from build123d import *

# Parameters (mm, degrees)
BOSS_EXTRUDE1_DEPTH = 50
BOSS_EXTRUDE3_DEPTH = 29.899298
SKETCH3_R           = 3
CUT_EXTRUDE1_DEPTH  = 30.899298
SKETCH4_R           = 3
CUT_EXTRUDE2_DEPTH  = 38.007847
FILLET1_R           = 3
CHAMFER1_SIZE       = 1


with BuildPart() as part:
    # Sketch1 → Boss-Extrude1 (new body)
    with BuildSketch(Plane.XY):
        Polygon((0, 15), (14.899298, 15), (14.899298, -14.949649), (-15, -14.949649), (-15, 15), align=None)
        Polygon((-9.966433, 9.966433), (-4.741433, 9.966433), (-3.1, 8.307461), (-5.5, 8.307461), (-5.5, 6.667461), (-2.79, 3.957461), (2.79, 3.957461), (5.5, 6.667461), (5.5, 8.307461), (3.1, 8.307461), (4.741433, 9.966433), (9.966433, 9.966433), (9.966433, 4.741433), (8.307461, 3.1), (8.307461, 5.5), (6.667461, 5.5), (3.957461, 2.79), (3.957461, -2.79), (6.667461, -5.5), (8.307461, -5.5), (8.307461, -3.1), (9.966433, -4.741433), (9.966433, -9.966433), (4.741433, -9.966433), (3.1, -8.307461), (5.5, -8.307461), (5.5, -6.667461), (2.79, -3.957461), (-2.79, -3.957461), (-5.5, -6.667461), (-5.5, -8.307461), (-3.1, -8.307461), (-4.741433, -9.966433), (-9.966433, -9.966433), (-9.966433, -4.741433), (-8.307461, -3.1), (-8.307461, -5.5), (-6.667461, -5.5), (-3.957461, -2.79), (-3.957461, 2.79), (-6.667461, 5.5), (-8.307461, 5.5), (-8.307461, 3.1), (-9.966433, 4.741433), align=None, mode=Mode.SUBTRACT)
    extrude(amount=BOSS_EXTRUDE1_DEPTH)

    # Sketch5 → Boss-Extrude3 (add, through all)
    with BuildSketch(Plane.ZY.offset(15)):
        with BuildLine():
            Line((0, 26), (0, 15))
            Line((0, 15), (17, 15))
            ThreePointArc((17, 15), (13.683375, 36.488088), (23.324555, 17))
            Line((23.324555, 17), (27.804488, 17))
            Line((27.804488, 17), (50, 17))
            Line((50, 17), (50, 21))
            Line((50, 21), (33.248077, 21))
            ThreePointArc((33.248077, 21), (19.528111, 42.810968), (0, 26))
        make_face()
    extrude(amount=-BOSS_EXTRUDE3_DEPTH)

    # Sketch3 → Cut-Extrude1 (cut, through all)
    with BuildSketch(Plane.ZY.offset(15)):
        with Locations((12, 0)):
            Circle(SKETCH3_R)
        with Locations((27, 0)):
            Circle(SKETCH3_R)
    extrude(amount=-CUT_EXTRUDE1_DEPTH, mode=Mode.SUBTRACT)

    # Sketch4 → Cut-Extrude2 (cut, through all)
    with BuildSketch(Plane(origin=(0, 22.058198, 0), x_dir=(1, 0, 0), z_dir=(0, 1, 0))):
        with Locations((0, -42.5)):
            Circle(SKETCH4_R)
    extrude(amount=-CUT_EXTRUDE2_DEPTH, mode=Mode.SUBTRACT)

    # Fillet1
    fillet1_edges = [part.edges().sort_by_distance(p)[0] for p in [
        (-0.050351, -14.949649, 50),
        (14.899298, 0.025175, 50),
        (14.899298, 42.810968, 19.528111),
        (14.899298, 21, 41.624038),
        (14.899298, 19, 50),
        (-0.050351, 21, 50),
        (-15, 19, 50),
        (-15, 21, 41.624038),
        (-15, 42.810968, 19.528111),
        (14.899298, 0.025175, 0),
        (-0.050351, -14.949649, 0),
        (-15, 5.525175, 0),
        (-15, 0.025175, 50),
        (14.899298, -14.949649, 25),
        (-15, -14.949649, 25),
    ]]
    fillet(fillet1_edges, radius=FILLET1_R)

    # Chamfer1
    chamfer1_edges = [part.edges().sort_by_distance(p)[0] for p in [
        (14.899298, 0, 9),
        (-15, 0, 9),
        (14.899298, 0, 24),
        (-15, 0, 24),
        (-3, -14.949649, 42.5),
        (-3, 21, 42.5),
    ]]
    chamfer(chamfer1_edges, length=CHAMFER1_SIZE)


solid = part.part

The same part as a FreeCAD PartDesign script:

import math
import FreeCAD as App
import Part
import Sketcher


def edges_at(feature, points):
    """Names of the edges that pass closest to the given points."""
    edges = feature.Shape.Edges
    near = lambda p: min(range(len(edges)), key=lambda i: edges[i].distToShape(Part.Vertex(*p))[0])
    return sorted({f"Edge{near(p) + 1}" for p in points})

doc = App.newDocument("Part")
body = doc.addObject("PartDesign::Body", "Body")

# Sketch on XY plane
sketch1 = body.newObject("Sketcher::SketchObject", "Sketch")
sketch1.AttachmentSupport = (doc.getObject("XY_Plane"), [""])
sketch1.MapMode = "FlatFace"
sketch1.addGeometry(Part.LineSegment(App.Vector(14.9, 15, 0), App.Vector(-15, 15, 0)), False)
sketch1.addGeometry(Part.LineSegment(App.Vector(-15, 15, 0), App.Vector(-15, -14.9, 0)), False)
sketch1.addGeometry(Part.LineSegment(App.Vector(-15, -14.9, 0), App.Vector(14.9, -14.9, 0)), False)
sketch1.addGeometry(Part.LineSegment(App.Vector(14.9, -14.9, 0), App.Vector(14.9, 15, 0)), False)
sketch1.addGeometry(Part.LineSegment(App.Vector(-10, 10, 0), App.Vector(-4.7, 10, 0)), False)
sketch1.addGeometry(Part.LineSegment(App.Vector(-4.7, 10, 0), App.Vector(-3.1, 8.3, 0)), False)
sketch1.addGeometry(Part.LineSegment(App.Vector(-3.1, 8.3, 0), App.Vector(-5.5, 8.3, 0)), False)
sketch1.addGeometry(Part.LineSegment(App.Vector(-5.5, 8.3, 0), App.Vector(-5.5, 6.7, 0)), False)
sketch1.addGeometry(Part.LineSegment(App.Vector(-5.5, 6.7, 0), App.Vector(-2.8, 4, 0)), False)
sketch1.addGeometry(Part.LineSegment(App.Vector(-2.8, 4, 0), App.Vector(2.8, 4, 0)), False)
sketch1.addGeometry(Part.LineSegment(App.Vector(2.8, 4, 0), App.Vector(5.5, 6.7, 0)), False)
sketch1.addGeometry(Part.LineSegment(App.Vector(5.5, 6.7, 0), App.Vector(5.5, 8.3, 0)), False)
sketch1.addGeometry(Part.LineSegment(App.Vector(5.5, 8.3, 0), App.Vector(3.1, 8.3, 0)), False)
sketch1.addGeometry(Part.LineSegment(App.Vector(3.1, 8.3, 0), App.Vector(4.7, 10, 0)), False)
sketch1.addGeometry(Part.LineSegment(App.Vector(4.7, 10, 0), App.Vector(10, 10, 0)), False)
sketch1.addGeometry(Part.LineSegment(App.Vector(10, 10, 0), App.Vector(10, 4.7, 0)), False)
sketch1.addGeometry(Part.LineSegment(App.Vector(10, 4.7, 0), App.Vector(8.3, 3.1, 0)), False)
sketch1.addGeometry(Part.LineSegment(App.Vector(8.3, 3.1, 0), App.Vector(8.3, 5.5, 0)), False)
sketch1.addGeometry(Part.LineSegment(App.Vector(8.3, 5.5, 0), App.Vector(6.7, 5.5, 0)), False)
sketch1.addGeometry(Part.LineSegment(App.Vector(6.7, 5.5, 0), App.Vector(4, 2.8, 0)), False)
sketch1.addGeometry(Part.LineSegment(App.Vector(4, 2.8, 0), App.Vector(4, -2.8, 0)), False)
sketch1.addGeometry(Part.LineSegment(App.Vector(4, -2.8, 0), App.Vector(6.7, -5.5, 0)), False)
sketch1.addGeometry(Part.LineSegment(App.Vector(6.7, -5.5, 0), App.Vector(8.3, -5.5, 0)), False)
sketch1.addGeometry(Part.LineSegment(App.Vector(8.3, -5.5, 0), App.Vector(8.3, -3.1, 0)), False)
sketch1.addGeometry(Part.LineSegment(App.Vector(8.3, -3.1, 0), App.Vector(10, -4.7, 0)), False)
sketch1.addGeometry(Part.LineSegment(App.Vector(10, -4.7, 0), App.Vector(10, -10, 0)), False)
sketch1.addGeometry(Part.LineSegment(App.Vector(10, -10, 0), App.Vector(4.7, -10, 0)), False)
sketch1.addGeometry(Part.LineSegment(App.Vector(4.7, -10, 0), App.Vector(3.1, -8.3, 0)), False)
sketch1.addGeometry(Part.LineSegment(App.Vector(3.1, -8.3, 0), App.Vector(5.5, -8.3, 0)), False)
sketch1.addGeometry(Part.LineSegment(App.Vector(5.5, -8.3, 0), App.Vector(5.5, -6.7, 0)), False)
sketch1.addGeometry(Part.LineSegment(App.Vector(5.5, -6.7, 0), App.Vector(2.8, -4, 0)), False)
sketch1.addGeometry(Part.LineSegment(App.Vector(2.8, -4, 0), App.Vector(-2.8, -4, 0)), False)
sketch1.addGeometry(Part.LineSegment(App.Vector(-2.8, -4, 0), App.Vector(-5.5, -6.7, 0)), False)
sketch1.addGeometry(Part.LineSegment(App.Vector(-5.5, -6.7, 0), App.Vector(-5.5, -8.3, 0)), False)
sketch1.addGeometry(Part.LineSegment(App.Vector(-5.5, -8.3, 0), App.Vector(-3.1, -8.3, 0)), False)
sketch1.addGeometry(Part.LineSegment(App.Vector(-3.1, -8.3, 0), App.Vector(-4.7, -10, 0)), False)
sketch1.addGeometry(Part.LineSegment(App.Vector(-4.7, -10, 0), App.Vector(-10, -10, 0)), False)
sketch1.addGeometry(Part.LineSegment(App.Vector(-10, -10, 0), App.Vector(-10, -4.7, 0)), False)
sketch1.addGeometry(Part.LineSegment(App.Vector(-10, -4.7, 0), App.Vector(-8.3, -3.1, 0)), False)
sketch1.addGeometry(Part.LineSegment(App.Vector(-8.3, -3.1, 0), App.Vector(-8.3, -5.5, 0)), False)
sketch1.addGeometry(Part.LineSegment(App.Vector(-8.3, -5.5, 0), App.Vector(-6.7, -5.5, 0)), False)
sketch1.addGeometry(Part.LineSegment(App.Vector(-6.7, -5.5, 0), App.Vector(-4, -2.8, 0)), False)
sketch1.addGeometry(Part.LineSegment(App.Vector(-4, -2.8, 0), App.Vector(-4, 2.8, 0)), False)
sketch1.addGeometry(Part.LineSegment(App.Vector(-4, 2.8, 0), App.Vector(-6.7, 5.5, 0)), False)
sketch1.addGeometry(Part.LineSegment(App.Vector(-6.7, 5.5, 0), App.Vector(-8.3, 5.5, 0)), False)
sketch1.addGeometry(Part.LineSegment(App.Vector(-8.3, 5.5, 0), App.Vector(-8.3, 3.1, 0)), False)
sketch1.addGeometry(Part.LineSegment(App.Vector(-8.3, 3.1, 0), App.Vector(-10, 4.7, 0)), False)
sketch1.addGeometry(Part.LineSegment(App.Vector(-10, 4.7, 0), App.Vector(-10, 10, 0)), False)
sketch1.addConstraint(Sketcher.Constraint("Coincident", 0, 2, 1, 1))
sketch1.addConstraint(Sketcher.Constraint("Coincident", 1, 2, 2, 1))
sketch1.addConstraint(Sketcher.Constraint("Coincident", 2, 2, 3, 1))
sketch1.addConstraint(Sketcher.Constraint("Coincident", 3, 2, 0, 1))
sketch1.addConstraint(Sketcher.Constraint("Coincident", 4, 2, 5, 1))
sketch1.addConstraint(Sketcher.Constraint("Coincident", 5, 2, 6, 1))
sketch1.addConstraint(Sketcher.Constraint("Coincident", 6, 2, 7, 1))
sketch1.addConstraint(Sketcher.Constraint("Coincident", 7, 2, 8, 1))
sketch1.addConstraint(Sketcher.Constraint("Coincident", 8, 2, 9, 1))
sketch1.addConstraint(Sketcher.Constraint("Coincident", 9, 2, 10, 1))
sketch1.addConstraint(Sketcher.Constraint("Coincident", 10, 2, 11, 1))
sketch1.addConstraint(Sketcher.Constraint("Coincident", 11, 2, 12, 1))
sketch1.addConstraint(Sketcher.Constraint("Coincident", 12, 2, 13, 1))
sketch1.addConstraint(Sketcher.Constraint("Coincident", 13, 2, 14, 1))
sketch1.addConstraint(Sketcher.Constraint("Coincident", 14, 2, 15, 1))
sketch1.addConstraint(Sketcher.Constraint("Coincident", 15, 2, 16, 1))
sketch1.addConstraint(Sketcher.Constraint("Coincident", 16, 2, 17, 1))
sketch1.addConstraint(Sketcher.Constraint("Coincident", 17, 2, 18, 1))
sketch1.addConstraint(Sketcher.Constraint("Coincident", 18, 2, 19, 1))
sketch1.addConstraint(Sketcher.Constraint("Coincident", 19, 2, 20, 1))
sketch1.addConstraint(Sketcher.Constraint("Coincident", 20, 2, 21, 1))
sketch1.addConstraint(Sketcher.Constraint("Coincident", 21, 2, 22, 1))
sketch1.addConstraint(Sketcher.Constraint("Coincident", 22, 2, 23, 1))
sketch1.addConstraint(Sketcher.Constraint("Coincident", 23, 2, 24, 1))
sketch1.addConstraint(Sketcher.Constraint("Coincident", 24, 2, 25, 1))
sketch1.addConstraint(Sketcher.Constraint("Coincident", 25, 2, 26, 1))
sketch1.addConstraint(Sketcher.Constraint("Coincident", 26, 2, 27, 1))
sketch1.addConstraint(Sketcher.Constraint("Coincident", 27, 2, 28, 1))
sketch1.addConstraint(Sketcher.Constraint("Coincident", 28, 2, 29, 1))
sketch1.addConstraint(Sketcher.Constraint("Coincident", 29, 2, 30, 1))
sketch1.addConstraint(Sketcher.Constraint("Coincident", 30, 2, 31, 1))
sketch1.addConstraint(Sketcher.Constraint("Coincident", 31, 2, 32, 1))
sketch1.addConstraint(Sketcher.Constraint("Coincident", 32, 2, 33, 1))
sketch1.addConstraint(Sketcher.Constraint("Coincident", 33, 2, 34, 1))
sketch1.addConstraint(Sketcher.Constraint("Coincident", 34, 2, 35, 1))
sketch1.addConstraint(Sketcher.Constraint("Coincident", 35, 2, 36, 1))
sketch1.addConstraint(Sketcher.Constraint("Coincident", 36, 2, 37, 1))
sketch1.addConstraint(Sketcher.Constraint("Coincident", 37, 2, 38, 1))
sketch1.addConstraint(Sketcher.Constraint("Coincident", 38, 2, 39, 1))
sketch1.addConstraint(Sketcher.Constraint("Coincident", 39, 2, 40, 1))
sketch1.addConstraint(Sketcher.Constraint("Coincident", 40, 2, 41, 1))
sketch1.addConstraint(Sketcher.Constraint("Coincident", 41, 2, 42, 1))
sketch1.addConstraint(Sketcher.Constraint("Coincident", 42, 2, 43, 1))
sketch1.addConstraint(Sketcher.Constraint("Coincident", 43, 2, 44, 1))
sketch1.addConstraint(Sketcher.Constraint("Coincident", 44, 2, 45, 1))
sketch1.addConstraint(Sketcher.Constraint("Coincident", 45, 2, 46, 1))
sketch1.addConstraint(Sketcher.Constraint("Coincident", 46, 2, 47, 1))
sketch1.addConstraint(Sketcher.Constraint("Coincident", 47, 2, 4, 1))
sketch1.addConstraint(Sketcher.Constraint("Horizontal", 0))
sketch1.addConstraint(Sketcher.Constraint("Vertical", 1))
sketch1.addConstraint(Sketcher.Constraint("Horizontal", 2))
sketch1.addConstraint(Sketcher.Constraint("Vertical", 3))
sketch1.addConstraint(Sketcher.Constraint("Horizontal", 4))
sketch1.addConstraint(Sketcher.Constraint("Horizontal", 6))
sketch1.addConstraint(Sketcher.Constraint("Vertical", 7))
sketch1.addConstraint(Sketcher.Constraint("Horizontal", 9))
sketch1.addConstraint(Sketcher.Constraint("Vertical", 11))
sketch1.addConstraint(Sketcher.Constraint("Horizontal", 12))
sketch1.addConstraint(Sketcher.Constraint("Horizontal", 14))
sketch1.addConstraint(Sketcher.Constraint("Vertical", 15))
sketch1.addConstraint(Sketcher.Constraint("Vertical", 17))
sketch1.addConstraint(Sketcher.Constraint("Horizontal", 18))
sketch1.addConstraint(Sketcher.Constraint("Vertical", 20))
sketch1.addConstraint(Sketcher.Constraint("Horizontal", 22))
sketch1.addConstraint(Sketcher.Constraint("Vertical", 23))
sketch1.addConstraint(Sketcher.Constraint("Vertical", 25))
sketch1.addConstraint(Sketcher.Constraint("Horizontal", 26))
sketch1.addConstraint(Sketcher.Constraint("Horizontal", 28))
sketch1.addConstraint(Sketcher.Constraint("Vertical", 29))
sketch1.addConstraint(Sketcher.Constraint("Horizontal", 31))
sketch1.addConstraint(Sketcher.Constraint("Vertical", 33))
sketch1.addConstraint(Sketcher.Constraint("Horizontal", 34))
sketch1.addConstraint(Sketcher.Constraint("Horizontal", 36))
sketch1.addConstraint(Sketcher.Constraint("Vertical", 37))
sketch1.addConstraint(Sketcher.Constraint("Vertical", 39))
sketch1.addConstraint(Sketcher.Constraint("Horizontal", 40))
sketch1.addConstraint(Sketcher.Constraint("Vertical", 42))
sketch1.addConstraint(Sketcher.Constraint("Horizontal", 44))
sketch1.addConstraint(Sketcher.Constraint("Vertical", 45))
sketch1.addConstraint(Sketcher.Constraint("Vertical", 47))
sketch1.addConstraint(Sketcher.Constraint("Symmetric", 4, 2, 26, 2, -1, 1))
sketch1.addConstraint(Sketcher.Constraint("Symmetric", 5, 2, 27, 2, -1, 1))
sketch1.addConstraint(Sketcher.Constraint("Symmetric", 7, 2, 29, 2, -1, 1))
sketch1.addConstraint(Sketcher.Constraint("Symmetric", 8, 2, 30, 2, -1, 1))
sketch1.addConstraint(Sketcher.Constraint("Symmetric", 10, 2, 32, 2, -1, 1))
sketch1.addConstraint(Sketcher.Constraint("Symmetric", 12, 2, 34, 2, -1, 1))
sketch1.addConstraint(Sketcher.Constraint("Symmetric", 13, 2, 35, 2, -1, 1))
sketch1.addConstraint(Sketcher.Constraint("Symmetric", 15, 2, 37, 2, -1, 1))
sketch1.addConstraint(Sketcher.Constraint("Symmetric", 16, 2, 38, 2, -1, 1))
sketch1.addConstraint(Sketcher.Constraint("Symmetric", 18, 2, 40, 2, -1, 1))
sketch1.addConstraint(Sketcher.Constraint("Symmetric", 19, 2, 41, 2, -1, 1))
sketch1.addConstraint(Sketcher.Constraint("Symmetric", 21, 2, 43, 2, -1, 1))
sketch1.addConstraint(Sketcher.Constraint("Symmetric", 23, 2, 45, 2, -1, 1))
sketch1.addConstraint(Sketcher.Constraint("Symmetric", 24, 2, 46, 2, -1, 1))
sketch1.addConstraint(Sketcher.Constraint("Symmetric", 7, 2, 10, 2, -2))
sketch1.addConstraint(Sketcher.Constraint("Symmetric", 5, 2, 12, 2, -2))
sketch1.addConstraint(Sketcher.Constraint("Symmetric", 4, 2, 13, 2, -2))
sketch1.addConstraint(Sketcher.Constraint("Symmetric", 24, 2, 37, 2, -2))
sketch1.addConstraint(Sketcher.Constraint("Symmetric", 23, 2, 38, 2, -2))
sketch1.addConstraint(Sketcher.Constraint("Symmetric", 21, 2, 40, 2, -2))
sketch1.addConstraint(Sketcher.Constraint("Perpendicular", 8, 10))
sketch1.addConstraint(Sketcher.Constraint("Perpendicular", 5, 16))
sketch1.addConstraint(Sketcher.Constraint("Parallel", 10, 19))
sketch1.addConstraint(Sketcher.Constraint("Perpendicular", 19, 21))
sketch1.addConstraint(Sketcher.Constraint("Perpendicular", 30, 32))
sketch1.addConstraint(Sketcher.Constraint("Perpendicular", 41, 43))
sketch1.addConstraint(Sketcher.Constraint("Horizontal", 20, 2, 41, 2))
sketch1.addConstraint(Sketcher.Constraint("Equal", 44, 7))
sketch1.addConstraint(Sketcher.Constraint("Equal", 36, 15))
sketch1.addConstraint(Sketcher.Constraint("Equal", 34, 17))
sketch1.addConstraint(Sketcher.Constraint("Equal", 31, 20))
sketch1.addConstraint(Sketcher.Constraint("Equal", 13, 16))
sketch1.addConstraint(Sketcher.Constraint("Equal", 10, 19))
sketch1.addConstraint(Sketcher.Constraint("DistanceX", 6, 2, 6, 1, 2.4))
sketch1.addConstraint(Sketcher.Constraint("DistanceX", 0, 2, -1, 1, 15.0))
sketch1.addConstraint(Sketcher.Constraint("DistanceY", -1, 1, 0, 2, 15.0))
sketch1.addConstraint(Sketcher.Constraint("DistanceX", 7, 2, 10, 2, 11.0))
sketch1.addConstraint(Sketcher.Constraint("DistanceX", 9, 1, 9, 2, 5.58))
sketch1.addConstraint(Sketcher.Constraint("DistanceX", 18, 2, 18, 1, 1.64))
sketch1.addConstraint(Sketcher.Constraint("DistanceX", 4, 1, 4, 2, 5.225))
sketch1.addConstraint(Sketcher.Constraint("DistanceX", 0, 2, 0, 1, 29.899298))
sketch1.addConstraint(Sketcher.Constraint("DistanceY", 1, 2, 1, 1, 29.949649))
sketch1.addConstraint(Sketcher.Constraint("Distance", 5, 2.333772))
sketch1.addConstraint(Sketcher.Constraint("DistanceY", -1, 1, 5, 2, 8.307461))
pad1 = body.newObject("PartDesign::Pad", "Pad")
pad1.Profile = sketch1
pad1.Length = 50

# Sketch on YZ plane
sketch2 = body.newObject("Sketcher::SketchObject", "Sketch001")
sketch2.AttachmentSupport = (doc.getObject("YZ_Plane"), [""])
sketch2.MapMode = "FlatFace"
sketch2.AttachmentOffset = App.Placement(App.Vector(0, 0, -15), App.Rotation())
sketch2.addGeometry(Part.LineSegment(App.Vector(26, 0, 0), App.Vector(15, 0, 0)), False)
sketch2.addGeometry(Part.LineSegment(App.Vector(15, 0, 0), App.Vector(15, 17, 0)), False)
sketch2.addGeometry(Part.ArcOfCircle(Part.Circle(App.Vector(26, 17, 0), App.Vector(0, 0, 1), 11), math.radians(180), math.radians(505)), False)
sketch2.addGeometry(Part.LineSegment(App.Vector(17, 23.3, 0), App.Vector(17, 50, 0)), False)
sketch2.addGeometry(Part.LineSegment(App.Vector(17, 50, 0), App.Vector(21, 50, 0)), False)
sketch2.addGeometry(Part.LineSegment(App.Vector(21, 50, 0), App.Vector(21, 33.2, 0)), False)
sketch2.addGeometry(Part.ArcOfCircle(Part.Circle(App.Vector(26, 17, 0), App.Vector(0, 0, 1), 17), math.radians(-90), math.radians(107)), False)
sketch2.addConstraint(Sketcher.Constraint("Coincident", 0, 2, 1, 1))
sketch2.addConstraint(Sketcher.Constraint("Tangent", 1, 2, 2, 1))
sketch2.addConstraint(Sketcher.Constraint("Coincident", 2, 2, 3, 1))
sketch2.addConstraint(Sketcher.Constraint("Coincident", 3, 2, 4, 1))
sketch2.addConstraint(Sketcher.Constraint("Coincident", 4, 2, 5, 1))
sketch2.addConstraint(Sketcher.Constraint("Coincident", 5, 2, 6, 2))
sketch2.addConstraint(Sketcher.Constraint("Tangent", 6, 1, 0, 1))
sketch2.addConstraint(Sketcher.Constraint("Horizontal", 0))
sketch2.addConstraint(Sketcher.Constraint("Vertical", 1))
sketch2.addConstraint(Sketcher.Constraint("Vertical", 3))
sketch2.addConstraint(Sketcher.Constraint("Horizontal", 4))
sketch2.addConstraint(Sketcher.Constraint("Vertical", 5))
sketch2.addConstraint(Sketcher.Constraint("Coincident", 6, 3, 2, 3))
sketch2.addConstraint(Sketcher.Constraint("PointOnObject", 0, 2, -1))
sketch2.addConstraint(Sketcher.Constraint("Radius", 2, 11.0))
sketch2.addConstraint(Sketcher.Constraint("Radius", 6, 17.0))
sketch2.addConstraint(Sketcher.Constraint("DistanceX", 4, 1, 4, 2, 4.0))
sketch2.addConstraint(Sketcher.Constraint("DistanceX", -1, 1, 2, 3, 26.0))
sketch2.addConstraint(Sketcher.Constraint("DistanceX", -1, 1, 2, 2, 17.0))
sketch2.addConstraint(Sketcher.Constraint("DistanceY", -1, 1, 3, 2, 50.0))
pad2 = body.newObject("PartDesign::Pad", "Pad001")
pad2.Profile = sketch2
pad2.Length = 29.899298

# Sketch on YZ plane
sketch3 = body.newObject("Sketcher::SketchObject", "Sketch002")
sketch3.AttachmentSupport = (doc.getObject("YZ_Plane"), [""])
sketch3.MapMode = "FlatFace"
sketch3.AttachmentOffset = App.Placement(App.Vector(0, 0, -15), App.Rotation())
sketch3.addGeometry(Part.Circle(App.Vector(0, 12, 0), App.Vector(0, 0, 1), 3), False)
sketch3.addGeometry(Part.Circle(App.Vector(0, 27, 0), App.Vector(0, 0, 1), 3), False)
sketch3.addConstraint(Sketcher.Constraint("Equal", 0, 1))
sketch3.addConstraint(Sketcher.Constraint("PointOnObject", 0, 3, -2))
sketch3.addConstraint(Sketcher.Constraint("PointOnObject", 1, 3, -2))
sketch3.addConstraint(Sketcher.Constraint("Diameter", 0, 6.0))
sketch3.addConstraint(Sketcher.Constraint("DistanceY", -1, 1, 0, 3, 12.0))
sketch3.addConstraint(Sketcher.Constraint("DistanceY", -1, 1, 1, 3, 27.0))
pocket1 = body.newObject("PartDesign::Pocket", "Pocket")
pocket1.Profile = sketch3
pocket1.Type = "ThroughAll"
pocket1.Reversed = True

# Sketch on XZ plane
sketch4 = body.newObject("Sketcher::SketchObject", "Sketch003")
sketch4.AttachmentSupport = (doc.getObject("XZ_Plane"), [""])
sketch4.MapMode = "FlatFace"
sketch4.AttachmentOffset = App.Placement(App.Vector(0, 0, -22.058198), App.Rotation())
sketch4.addGeometry(Part.Circle(App.Vector(0, 42.5, 0), App.Vector(0, 0, 1), 3), False)
sketch4.addConstraint(Sketcher.Constraint("PointOnObject", 0, 3, -2))
sketch4.addConstraint(Sketcher.Constraint("Diameter", 0, 6.0))
sketch4.addConstraint(Sketcher.Constraint("DistanceY", -1, 1, 0, 3, 42.5))
pocket2 = body.newObject("PartDesign::Pocket", "Pocket001")
pocket2.Profile = sketch4
pocket2.Type = "ThroughAll"
pocket2.Reversed = True
doc.recompute()

fillet = body.newObject("PartDesign::Fillet", "Fillet")
fillet.Base = (pocket2, edges_at(pocket2, [
    (-0.05, -14.95, 50),
    (14.899, 0.025, 50),
    (14.899, 42.811, 19.528),
    (14.899, 21, 41.624),
    (14.899, 19, 50),
    (-0.05, 21, 50),
    (-15, 19, 50),
    (-15, 21, 41.624),
    (-15, 42.811, 19.528),
    (14.899, 5.525, 0),
    (-0.05, -14.95, 0),
    (-15, 5.525, 0),
    (-15, 0.025, 50),
    (14.899, -14.95, 25),
    (-15, -14.95, 25),
]))
fillet.Radius = 3
doc.recompute()

chamfer = body.newObject("PartDesign::Chamfer", "Chamfer")
chamfer.Base = (fillet, edges_at(fillet, [
    (14.899, 0, 9),
    (-15, 0, 9),
    (14.899, 0, 24),
    (-15, 0, 24),
    (-3, -14.95, 42.5),
    (-3, 21, 42.5),
]))
chamfer.Size = 1

doc.recompute()
